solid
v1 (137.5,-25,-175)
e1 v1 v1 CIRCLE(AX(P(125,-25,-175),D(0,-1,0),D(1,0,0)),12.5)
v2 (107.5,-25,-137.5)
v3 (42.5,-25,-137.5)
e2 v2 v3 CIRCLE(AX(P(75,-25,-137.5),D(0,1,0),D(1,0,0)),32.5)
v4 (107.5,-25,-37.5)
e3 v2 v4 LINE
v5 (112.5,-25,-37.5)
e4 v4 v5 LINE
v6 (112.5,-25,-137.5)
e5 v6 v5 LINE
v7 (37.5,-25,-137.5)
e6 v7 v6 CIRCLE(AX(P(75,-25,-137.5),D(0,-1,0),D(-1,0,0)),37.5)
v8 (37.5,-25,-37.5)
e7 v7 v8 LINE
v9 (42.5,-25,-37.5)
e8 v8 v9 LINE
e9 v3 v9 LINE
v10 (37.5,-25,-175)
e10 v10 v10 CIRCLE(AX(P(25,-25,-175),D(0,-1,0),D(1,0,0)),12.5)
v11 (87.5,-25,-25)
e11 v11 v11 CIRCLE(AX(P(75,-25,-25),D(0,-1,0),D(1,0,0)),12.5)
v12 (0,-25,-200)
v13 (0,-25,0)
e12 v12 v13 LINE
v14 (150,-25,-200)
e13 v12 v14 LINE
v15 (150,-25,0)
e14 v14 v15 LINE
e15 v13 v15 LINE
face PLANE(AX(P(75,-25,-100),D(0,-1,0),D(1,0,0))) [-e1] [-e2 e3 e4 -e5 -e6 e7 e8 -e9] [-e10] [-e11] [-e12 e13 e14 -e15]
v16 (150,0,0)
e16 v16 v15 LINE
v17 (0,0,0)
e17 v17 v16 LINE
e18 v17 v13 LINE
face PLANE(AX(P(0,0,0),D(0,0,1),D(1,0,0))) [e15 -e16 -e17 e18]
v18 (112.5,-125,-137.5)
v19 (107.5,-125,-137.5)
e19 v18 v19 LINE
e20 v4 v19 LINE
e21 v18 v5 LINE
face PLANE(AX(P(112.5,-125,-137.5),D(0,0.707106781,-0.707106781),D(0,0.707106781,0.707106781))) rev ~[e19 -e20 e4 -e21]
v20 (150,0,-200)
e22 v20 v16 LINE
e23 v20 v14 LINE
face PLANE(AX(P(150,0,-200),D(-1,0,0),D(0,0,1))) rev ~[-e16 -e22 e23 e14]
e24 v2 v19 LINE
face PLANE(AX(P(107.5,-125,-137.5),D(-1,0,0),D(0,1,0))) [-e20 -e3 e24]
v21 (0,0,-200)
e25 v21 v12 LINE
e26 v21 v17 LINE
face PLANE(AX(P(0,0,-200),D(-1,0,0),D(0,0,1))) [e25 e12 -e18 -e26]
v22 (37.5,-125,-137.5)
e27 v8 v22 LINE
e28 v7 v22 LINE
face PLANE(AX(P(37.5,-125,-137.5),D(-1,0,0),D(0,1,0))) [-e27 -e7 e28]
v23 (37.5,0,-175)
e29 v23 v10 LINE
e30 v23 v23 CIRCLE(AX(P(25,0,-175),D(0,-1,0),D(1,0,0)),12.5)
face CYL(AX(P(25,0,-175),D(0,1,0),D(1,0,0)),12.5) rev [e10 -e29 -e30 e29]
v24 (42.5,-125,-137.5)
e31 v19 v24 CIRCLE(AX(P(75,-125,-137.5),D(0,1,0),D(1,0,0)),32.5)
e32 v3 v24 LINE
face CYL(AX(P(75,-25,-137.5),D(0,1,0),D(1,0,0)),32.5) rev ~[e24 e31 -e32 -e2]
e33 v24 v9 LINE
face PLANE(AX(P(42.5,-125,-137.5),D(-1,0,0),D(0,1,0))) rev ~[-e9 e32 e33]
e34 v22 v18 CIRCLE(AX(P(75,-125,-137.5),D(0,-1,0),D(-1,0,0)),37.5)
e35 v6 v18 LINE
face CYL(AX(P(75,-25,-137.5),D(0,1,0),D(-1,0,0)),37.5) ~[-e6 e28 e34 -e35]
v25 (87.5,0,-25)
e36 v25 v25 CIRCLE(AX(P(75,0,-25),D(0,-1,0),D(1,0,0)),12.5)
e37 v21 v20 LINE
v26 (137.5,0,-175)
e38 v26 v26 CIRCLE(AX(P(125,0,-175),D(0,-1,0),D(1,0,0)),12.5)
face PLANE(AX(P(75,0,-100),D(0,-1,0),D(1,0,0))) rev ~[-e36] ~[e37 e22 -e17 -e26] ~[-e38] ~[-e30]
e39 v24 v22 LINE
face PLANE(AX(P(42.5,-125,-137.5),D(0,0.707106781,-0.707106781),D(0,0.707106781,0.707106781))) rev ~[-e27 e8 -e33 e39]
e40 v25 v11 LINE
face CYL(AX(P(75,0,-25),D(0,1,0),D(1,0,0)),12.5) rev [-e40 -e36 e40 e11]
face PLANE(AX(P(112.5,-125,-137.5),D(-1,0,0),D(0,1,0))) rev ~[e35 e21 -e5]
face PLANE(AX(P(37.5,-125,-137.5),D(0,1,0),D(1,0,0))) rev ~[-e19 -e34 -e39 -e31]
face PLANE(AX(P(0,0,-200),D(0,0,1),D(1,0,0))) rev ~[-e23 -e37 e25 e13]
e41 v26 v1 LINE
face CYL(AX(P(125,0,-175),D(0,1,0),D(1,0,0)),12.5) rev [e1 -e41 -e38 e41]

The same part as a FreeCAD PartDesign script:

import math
import FreeCAD as App
import Part
import Sketcher

doc = App.newDocument("Part")
params = doc.addObject("Spreadsheet::Sheet", "Params")
for row, (alias, value) in enumerate([
    ("sketch1_diameter", "25 mm"),
    ("sketch1_width", "150 mm"),
    ("sketch1_height", "200 mm"),
    ("pad1_length", "25 mm"),
    ("sketch2_radius", "37.5 mm"),
    ("sketch2_radius2", "32.5 mm"),
    ("pad2_length", "100 mm"),
    ("sketch3_width", "5 mm"),
    ("sketch3_height", "100 mm"),
    ("pad3_length", "100 mm"),
    ("sketch4_width", "100 mm"),
    ("pocket1_length", "25 mm"),
    ("sketch5_width", "5 mm"),
    ("sketch5_height", "100 mm"),
    ("pad4_length", "100 mm"),
    ("sketch6_width", "100 mm"),
    ("pocket2_length", "25 mm"),
], start=1):
    params.set(f"A{row}", alias)
    params.set(f"B{row}", "=" + value)
    params.setAlias(f"B{row}", alias)

body = doc.addObject("PartDesign::Body", "Body")

# Sketch on XZ plane
sketch1 = doc.addObject("Sketcher::SketchObject", "Sketch")
body.addObject(sketch1)
sketch1.AttachmentSupport = (doc.XZ_Plane, [""])
sketch1.MapMode = "FlatFace"
sketch1.addGeometry(Part.LineSegment(App.Vector(0, 0, 0), App.Vector(0, -200, 0)), False)
sketch1.addGeometry(Part.LineSegment(App.Vector(0, -200, 0), App.Vector(150, -200, 0)), False)
sketch1.addGeometry(Part.LineSegment(App.Vector(150, -200, 0), App.Vector(150, 0, 0)), False)
sketch1.addGeometry(Part.LineSegment(App.Vector(150, 0, 0), App.Vector(0, 0, 0)), False)
sketch1.addGeometry(Part.Circle(App.Vector(25, -175, 0), App.Vector(0, 0, 1), 12.5), False)
sketch1.addGeometry(Part.Circle(App.Vector(125, -175, 0), App.Vector(0, 0, 1), 12.5), False)
sketch1.addGeometry(Part.Circle(App.Vector(75, -25, 0), App.Vector(0, 0, 1), 12.5), False)
sketch1.addConstraint(Sketcher.Constraint("Coincident", 0, 2, 1, 1))
sketch1.addConstraint(Sketcher.Constraint("Coincident", 1, 2, 2, 1))
sketch1.addConstraint(Sketcher.Constraint("Coincident", 2, 2, 3, 1))
sketch1.addConstraint(Sketcher.Constraint("Coincident", 3, 2, 0, 1))
sketch1.addConstraint(Sketcher.Constraint("Vertical", 0))
sketch1.addConstraint(Sketcher.Constraint("Horizontal", 1))
sketch1.addConstraint(Sketcher.Constraint("Vertical", 2))
sketch1.addConstraint(Sketcher.Constraint("Horizontal", 3))
sketch1.addConstraint(Sketcher.Constraint("Coincident", 3, 2, -1, 1))
sketch1.addConstraint(Sketcher.Constraint("Equal", 4, 5))
sketch1.addConstraint(Sketcher.Constraint("Equal", 5, 6))
sketch1.addConstraint(Sketcher.Constraint("Horizontal", 4, 3, 5, 3))
sketch1.addConstraint(Sketcher.Constraint("Diameter", 4, 25.0))
sketch1.addConstraint(Sketcher.Constraint("DistanceX", 1, 1, 1, 2, 150.0))
sketch1.addConstraint(Sketcher.Constraint("DistanceY", 0, 2, 0, 1, 200.0))
sketch1.addConstraint(Sketcher.Constraint("DistanceX", -1, 1, 4, 3, 25.0))
sketch1.addConstraint(Sketcher.Constraint("DistanceY", 4, 3, -1, 1, 175.0))
sketch1.addConstraint(Sketcher.Constraint("DistanceX", -1, 1, 5, 3, 125.0))
sketch1.addConstraint(Sketcher.Constraint("DistanceX", -1, 1, 6, 3, 75.0))
sketch1.addConstraint(Sketcher.Constraint("DistanceY", 6, 3, -1, 1, 25.0))
sketch1.setExpression("Constraints[12]", "Params.sketch1_diameter")
sketch1.setExpression("Constraints[13]", "Params.sketch1_width")
sketch1.setExpression("Constraints[14]", "Params.sketch1_height")
pad1 = doc.addObject("PartDesign::Pad", "Pad")
body.addObject(pad1)
pad1.Profile = sketch1
pad1.setExpression("Length", "Params.pad1_length")

# Sketch on XZ plane
sketch2 = doc.addObject("Sketcher::SketchObject", "Sketch001")
body.addObject(sketch2)
sketch2.AttachmentSupport = (doc.XZ_Plane, [""])
sketch2.MapMode = "FlatFace"
sketch2.AttachmentOffset = App.Placement(App.Vector(0, 0, 25), App.Rotation())
sketch2.addGeometry(Part.LineSegment(App.Vector(42.5, -137.5, 0), App.Vector(37.5, -137.5, 0)), False)
sketch2.addGeometry(Part.ArcOfCircle(Part.Circle(App.Vector(75, -137.5, 0), App.Vector(0, 0, 1), 37.5), math.radians(180), math.radians(360)), False)
sketch2.addGeometry(Part.LineSegment(App.Vector(112.5, -137.5, 0), App.Vector(107.5, -137.5, 0)), False)
sketch2.addGeometry(Part.ArcOfCircle(Part.Circle(App.Vector(75, -137.5, 0), App.Vector(0, 0, 1), 32.5), math.radians(180), math.radians(360)), False)
sketch2.addConstraint(Sketcher.Constraint("Coincident", 0, 2, 1, 1))
sketch2.addConstraint(Sketcher.Constraint("Coincident", 1, 2, 2, 1))
sketch2.addConstraint(Sketcher.Constraint("Coincident", 2, 2, 3, 2))
sketch2.addConstraint(Sketcher.Constraint("Coincident", 3, 1, 0, 1))
sketch2.addConstraint(Sketcher.Constraint("Horizontal", 0))
sketch2.addConstraint(Sketcher.Constraint("Horizontal", 2))
sketch2.addConstraint(Sketcher.Constraint("Coincident", 3, 3, 1, 3))
sketch2.addConstraint(Sketcher.Constraint("Horizontal", 3, 3, 0, 2))
sketch2.addConstraint(Sketcher.Constraint("Horizontal", 0, 2, 1, 2))
sketch2.addConstraint(Sketcher.Constraint("Radius", 1, 37.5))
sketch2.addConstraint(Sketcher.Constraint("Radius", 3, 32.5))
sketch2.addConstraint(Sketcher.Constraint("DistanceX", -1, 1, 1, 3, 75.0))
sketch2.addConstraint(Sketcher.Constraint("DistanceY", 1, 3, -1, 1, 137.5))
sketch2.setExpression("Constraints[9]", "Params.sketch2_radius")
sketch2.setExpression("Constraints[10]", "Params.sketch2_radius2")
pad2 = doc.addObject("PartDesign::Pad", "Pad001")
body.addObject(pad2)
pad2.Profile = sketch2
pad2.setExpression("Length", "Params.pad2_length")

# Sketch on XY plane
sketch3 = doc.addObject("Sketcher::SketchObject", "Sketch002")
body.addObject(sketch3)
sketch3.AttachmentSupport = (doc.XY_Plane, [""])
sketch3.MapMode = "FlatFace"
sketch3.AttachmentOffset = App.Placement(App.Vector(0, 0, -137.5), App.Rotation())
sketch3.addGeometry(Part.LineSegment(App.Vector(107.5, -25, 0), App.Vector(107.5, -125, 0)), False)
sketch3.addGeometry(Part.LineSegment(App.Vector(107.5, -125, 0), App.Vector(112.5, -125, 0)), False)
sketch3.addGeometry(Part.LineSegment(App.Vector(112.5, -125, 0), App.Vector(112.5, -25, 0)), False)
sketch3.addGeometry(Part.LineSegment(App.Vector(112.5, -25, 0), App.Vector(107.5, -25, 0)), False)
sketch3.addConstraint(Sketcher.Constraint("Coincident", 0, 2, 1, 1))
sketch3.addConstraint(Sketcher.Constraint("Coincident", 1, 2, 2, 1))
sketch3.addConstraint(Sketcher.Constraint("Coincident", 2, 2, 3, 1))
sketch3.addConstraint(Sketcher.Constraint("Coincident", 3, 2, 0, 1))
sketch3.addConstraint(Sketcher.Constraint("Vertical", 0))
sketch3.addConstraint(Sketcher.Constraint("Horizontal", 1))
sketch3.addConstraint(Sketcher.Constraint("Vertical", 2))
sketch3.addConstraint(Sketcher.Constraint("Horizontal", 3))
sketch3.addConstraint(Sketcher.Constraint("DistanceX", 1, 1, 1, 2, 5.0))
sketch3.addConstraint(Sketcher.Constraint("DistanceY", 0, 2, 0, 1, 100.0))
sketch3.addConstraint(Sketcher.Constraint("DistanceY", 0, 2, -1, 1, 125.0))
sketch3.addConstraint(Sketcher.Constraint("DistanceX", -1, 1, 0, 2, 107.5))
sketch3.setExpression("Constraints[8]", "Params.sketch3_width")
sketch3.setExpression("Constraints[9]", "Params.sketch3_height")
pad3 = doc.addObject("PartDesign::Pad", "Pad002")
body.addObject(pad3)
pad3.Profile = sketch3
pad3.setExpression("Length", "Params.pad3_length")

# Sketch on YZ plane
sketch4 = doc.addObject("Sketcher::SketchObject", "Sketch003")
body.addObject(sketch4)
sketch4.AttachmentSupport = (doc.YZ_Plane, [""])
sketch4.MapMode = "FlatFace"
sketch4.AttachmentOffset = App.Placement(App.Vector(0, 0, 112.5), App.Rotation())
sketch4.addGeometry(Part.LineSegment(App.Vector(-125, -37.5, 0), App.Vector(-125, -137.5, 0)), False)
sketch4.addGeometry(Part.LineSegment(App.Vector(-125, -137.5, 0), App.Vector(-25, -37.5, 0)), False)
sketch4.addGeometry(Part.LineSegment(App.Vector(-25, -37.5, 0), App.Vector(-125, -37.5, 0)), False)
sketch4.addConstraint(Sketcher.Constraint("Coincident", 0, 2, 1, 1))
sketch4.addConstraint(Sketcher.Constraint("Coincident", 1, 2, 2, 1))
sketch4.addConstraint(Sketcher.Constraint("Coincident", 2, 2, 0, 1))
sketch4.addConstraint(Sketcher.Constraint("Vertical", 0))
sketch4.addConstraint(Sketcher.Constraint("Horizontal", 2))
sketch4.addConstraint(Sketcher.Constraint("Equal", 2, 0))
sketch4.addConstraint(Sketcher.Constraint("DistanceX", 2, 2, 2, 1, 100.0))
sketch4.addConstraint(Sketcher.Constraint("DistanceX", 0, 2, -1, 1, 125.0))
sketch4.addConstraint(Sketcher.Constraint("DistanceY", 0, 2, -1, 1, 137.5))
sketch4.setExpression("Constraints[6]", "Params.sketch4_width")
pocket1 = doc.addObject("PartDesign::Pocket", "Pocket")
body.addObject(pocket1)
pocket1.Profile = sketch4
pocket1.setExpression("Length", "Params.pocket1_length")

# Sketch on XY plane
sketch5 = doc.addObject("Sketcher::SketchObject", "Sketch004")
body.addObject(sketch5)
sketch5.AttachmentSupport = (doc.XY_Plane, [""])
sketch5.MapMode = "FlatFace"
sketch5.AttachmentOffset = App.Placement(App.Vector(0, 0, -137.5), App.Rotation())
sketch5.addGeometry(Part.LineSegment(App.Vector(37.5, -25, 0), App.Vector(37.5, -125, 0)), False)
sketch5.addGeometry(Part.LineSegment(App.Vector(37.5, -125, 0), App.Vector(42.5, -125, 0)), False)
sketch5.addGeometry(Part.LineSegment(App.Vector(42.5, -125, 0), App.Vector(42.5, -25, 0)), False)
sketch5.addGeometry(Part.LineSegment(App.Vector(42.5, -25, 0), App.Vector(37.5, -25, 0)), False)
sketch5.addConstraint(Sketcher.Constraint("Coincident", 0, 2, 1, 1))
sketch5.addConstraint(Sketcher.Constraint("Coincident", 1, 2, 2, 1))
sketch5.addConstraint(Sketcher.Constraint("Coincident", 2, 2, 3, 1))
sketch5.addConstraint(Sketcher.Constraint("Coincident", 3, 2, 0, 1))
sketch5.addConstraint(Sketcher.Constraint("Vertical", 0))
sketch5.addConstraint(Sketcher.Constraint("Horizontal", 1))
sketch5.addConstraint(Sketcher.Constraint("Vertical", 2))
sketch5.addConstraint(Sketcher.Constraint("Horizontal", 3))
sketch5.addConstraint(Sketcher.Constraint("DistanceX", 1, 1, 1, 2, 5.0))
sketch5.addConstraint(Sketcher.Constraint("DistanceY", 0, 2, 0, 1, 100.0))
sketch5.addConstraint(Sketcher.Constraint("DistanceY", 0, 2, -1, 1, 125.0))
sketch5.addConstraint(Sketcher.Constraint("DistanceX", -1, 1, 0, 2, 37.5))
sketch5.setExpression("Constraints[8]", "Params.sketch5_width")
sketch5.setExpression("Constraints[9]", "Params.sketch5_height")
pad4 = doc.addObject("PartDesign::Pad", "Pad003")
body.addObject(pad4)
pad4.Profile = sketch5
pad4.setExpression("Length", "Params.pad4_length")

# Sketch on YZ plane
sketch6 = doc.addObject("Sketcher::SketchObject", "Sketch005")
body.addObject(sketch6)
sketch6.AttachmentSupport = (doc.YZ_Plane, [""])
sketch6.MapMode = "FlatFace"
sketch6.AttachmentOffset = App.Placement(App.Vector(0, 0, 42.5), App.Rotation())
sketch6.addGeometry(Part.LineSegment(App.Vector(-125, -37.5, 0), App.Vector(-125, -137.5, 0)), False)
sketch6.addGeometry(Part.LineSegment(App.Vector(-125, -137.5, 0), App.Vector(-25, -37.5, 0)), False)
sketch6.addGeometry(Part.LineSegment(App.Vector(-25, -37.5, 0), App.Vector(-125, -37.5, 0)), False)
sketch6.addConstraint(Sketcher.Constraint("Coincident", 0, 2, 1, 1))
sketch6.addConstraint(Sketcher.Constraint("Coincident", 1, 2, 2, 1))
sketch6.addConstraint(Sketcher.Constraint("Coincident", 2, 2, 0, 1))
sketch6.addConstraint(Sketcher.Constraint("Vertical", 0))
sketch6.addConstraint(Sketcher.Constraint("Horizontal", 2))
sketch6.addConstraint(Sketcher.Constraint("Equal", 2, 0))
sketch6.addConstraint(Sketcher.Constraint("DistanceX", 2, 2, 2, 1, 100.0))
sketch6.addConstraint(Sketcher.Constraint("DistanceX", 0, 2, -1, 1, 125.0))
sketch6.addConstraint(Sketcher.Constraint("DistanceY", 0, 2, -1, 1, 137.5))
sketch6.setExpression("Constraints[6]", "Params.sketch6_width")
pocket2 = doc.addObject("PartDesign::Pocket", "Pocket001")
body.addObject(pocket2)
pocket2.Profile = sketch6
pocket2.setExpression("Length", "Params.pocket2_length")

doc.recompute()
